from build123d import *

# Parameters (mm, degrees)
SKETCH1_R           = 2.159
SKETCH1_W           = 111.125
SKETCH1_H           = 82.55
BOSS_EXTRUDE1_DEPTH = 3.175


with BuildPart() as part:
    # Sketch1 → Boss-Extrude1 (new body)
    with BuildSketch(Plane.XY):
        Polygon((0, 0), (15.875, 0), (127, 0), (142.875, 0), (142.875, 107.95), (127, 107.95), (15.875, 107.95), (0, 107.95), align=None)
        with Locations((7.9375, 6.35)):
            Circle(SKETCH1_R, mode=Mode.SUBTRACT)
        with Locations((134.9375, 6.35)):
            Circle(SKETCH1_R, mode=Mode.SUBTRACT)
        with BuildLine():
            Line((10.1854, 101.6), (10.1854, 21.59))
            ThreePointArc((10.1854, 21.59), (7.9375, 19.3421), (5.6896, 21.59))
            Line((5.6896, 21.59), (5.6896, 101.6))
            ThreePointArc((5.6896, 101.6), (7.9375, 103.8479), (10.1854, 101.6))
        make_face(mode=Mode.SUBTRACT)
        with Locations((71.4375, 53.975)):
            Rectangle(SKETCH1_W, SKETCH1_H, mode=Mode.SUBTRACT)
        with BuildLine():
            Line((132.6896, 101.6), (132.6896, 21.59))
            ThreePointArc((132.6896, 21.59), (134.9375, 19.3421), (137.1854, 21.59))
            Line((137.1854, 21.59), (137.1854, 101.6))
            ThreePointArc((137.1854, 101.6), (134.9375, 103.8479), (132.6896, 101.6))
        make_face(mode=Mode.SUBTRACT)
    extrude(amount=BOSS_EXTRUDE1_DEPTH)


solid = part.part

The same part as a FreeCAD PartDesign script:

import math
import FreeCAD as App
import Part
import Sketcher

V = App.Vector
Q = App.Units.Quantity


def add_polygon(sketch, points):
    """Adds a closed chain of lines whose ends are joined by coincident constraints."""
    first, n = sketch.GeometryCount, len(points)
    for a, b in zip(points, points[1:] + points[:1]):
        sketch.addGeometry(Part.LineSegment(App.Vector(*a, 0), App.Vector(*b, 0)), False)
    for i in range(n):
        sketch.addConstraint(Sketcher.Constraint("Coincident", first + i, 2, first + (i + 1) % n, 1))

doc = App.newDocument("Part")
body = doc.addObject("PartDesign::Body", "Body")

# Sketch on XY plane
sketch1 = body.newObject("Sketcher::SketchObject", "Sketch")
sketch1.AttachmentSupport = (doc.getObject("XY_Plane"), [""])
sketch1.MapMode = "FlatFace"
add_polygon(sketch1, [(0, 0), (142.875, 0), (142.875, 107.95), (0, 107.95)])  # lines 0-3
sketch1.addGeometry(Part.Circle(V(7.9375, 6.35, 0), V(0, 0, 1), 2.159), False)  # 4
sketch1.addGeometry(Part.Circle(V(134.9375, 6.35, 0), V(0, 0, 1), 2.159), False)  # 5
add_polygon(sketch1, [(127, 12.7), (15.875, 12.7), (15.875, 95.25), (127, 95.25)])  # lines 6-9
sketch1.addGeometry(Part.ArcOfCircle(Part.Circle(V(7.9375, 101.6, 0), V(0, 0, 1), 2.2479), math.radians(0), math.radians(180)), False)  # 10
sketch1.addGeometry(Part.LineSegment(V(10.1854, 101.6, 0), V(10.1854, 21.59, 0)), False)  # 11
sketch1.addGeometry(Part.ArcOfCircle(Part.Circle(V(7.9375, 21.59, 0), V(0, 0, 1), 2.2479), math.radians(180), math.radians(360)), False)  # 12
sketch1.addGeometry(Part.LineSegment(V(5.6896, 21.59, 0), V(5.6896, 101.6, 0)), False)  # 13
sketch1.addGeometry(Part.LineSegment(V(132.6896, 21.59, 0), V(132.6896, 101.6, 0)), False)  # 14
sketch1.addGeometry(Part.ArcOfCircle(Part.Circle(V(134.9375, 101.6, 0), V(0, 0, 1), 2.2479), math.radians(0), math.radians(180)), False)  # 15
sketch1.addGeometry(Part.LineSegment(V(137.1854, 101.6, 0), V(137.1854, 21.59, 0)), False)  # 16
sketch1.addGeometry(Part.ArcOfCircle(Part.Circle(V(134.9375, 21.59, 0), V(0, 0, 1), 2.2479), math.radians(180), math.radians(360)), False)  # 17
sketch1.addConstraint(Sketcher.Constraint("Tangent", 10, 1, 11, 1))
sketch1.addConstraint(Sketcher.Constraint("Tangent", 11, 2, 12, 2))
sketch1.addConstraint(Sketcher.Constraint("Tangent", 12, 1, 13, 1))
sketch1.addConstraint(Sketcher.Constraint("Tangent", 13, 2, 10, 2))
sketch1.addConstraint(Sketcher.Constraint("Tangent", 14, 2, 15, 2))
sketch1.addConstraint(Sketcher.Constraint("Tangent", 15, 1, 16, 1))
sketch1.addConstraint(Sketcher.Constraint("Tangent", 16, 2, 17, 2))
sketch1.addConstraint(Sketcher.Constraint("Tangent", 17, 1, 14, 1))
sketch1.addConstraint(Sketcher.Constraint("Horizontal", 0))
sketch1.addConstraint(Sketcher.Constraint("Vertical", 1))
sketch1.addConstraint(Sketcher.Constraint("Horizontal", 2))
sketch1.addConstraint(Sketcher.Constraint("Vertical", 3))
sketch1.addConstraint(Sketcher.Constraint("Horizontal", 6))
sketch1.addConstraint(Sketcher.Constraint("Vertical", 7))
sketch1.addConstraint(Sketcher.Constraint("Horizontal", 8))
sketch1.addConstraint(Sketcher.Constraint("Vertical", 9))
sketch1.addConstraint(Sketcher.Constraint("Vertical", 11))
sketch1.addConstraint(Sketcher.Constraint("Vertical", 13))
sketch1.addConstraint(Sketcher.Constraint("Vertical", 14))
sketch1.addConstraint(Sketcher.Constraint("Vertical", 16))
sketch1.addConstraint(Sketcher.Constraint("Coincident", 3, 2, -1, 1))
sketch1.addConstraint(Sketcher.Constraint("Equal", 4, 5))
sketch1.addConstraint(Sketcher.Constraint("Equal", 12, 15))
sketch1.addConstraint(Sketcher.Constraint("Horizontal", 4, 3, 5, 3))
sketch1.addConstraint(Sketcher.Constraint("Horizontal", 10, 3, 15, 3))
sketch1.addConstraint(Sketcher.Constraint("Horizontal", 12, 3, 17, 3))
sketch1.addConstraint(Sketcher.Constraint("Vertical", 4, 3, 10, 3))
sketch1.addConstraint(Sketcher.Constraint("Vertical", 5, 3, 15, 3))
sketch1.addConstraint(Sketcher.Constraint("Diameter", 4, Q("0.17 in")))
sketch1.addConstraint(Sketcher.Constraint("DistanceY", -1, 1, 10, 3, Q("4 in")))
sketch1.addConstraint(Sketcher.Constraint("DistanceX", -1, 1, 8, 2, Q("5 in")))
sketch1.addConstraint(Sketcher.Constraint("DistanceX", 4, 3, 5, 3, Q("5 in")))
sketch1.addConstraint(Sketcher.Constraint("DistanceY", 5, 3, 1, 2, Q("4 in")))
sketch1.addConstraint(Sketcher.Constraint("DistanceY", 1, 1, 1, 2, Q("4.25 in")))
sketch1.addConstraint(Sketcher.Constraint("DistanceY", 7, 1, 7, 2, Q("3.25 in")))
sketch1.addConstraint(Sketcher.Constraint("DistanceY", 11, 2, 11, 1, Q("3.15 in")))
sketch1.addConstraint(Sketcher.Constraint("DistanceY", -1, 1, 6, 2, Q("0.5 in")))
sketch1.addConstraint(Sketcher.Constraint("Radius", 10, Q("0.0885 in")))
sketch1.addConstraint(Sketcher.Constraint("DistanceX", 0, 1, 0, 2, Q("5.625 in")))
sketch1.addConstraint(Sketcher.Constraint("DistanceX", 6, 2, 6, 1, Q("4.375 in")))
sketch1.addConstraint(Sketcher.Constraint("DistanceX", -1, 1, 4, 3, Q("0.3125 in")))
pad1 = body.newObject("PartDesign::Pad", "Pad")
pad1.Profile = sketch1
pad1.Length = Q("0.125 in")

doc.recompute()
